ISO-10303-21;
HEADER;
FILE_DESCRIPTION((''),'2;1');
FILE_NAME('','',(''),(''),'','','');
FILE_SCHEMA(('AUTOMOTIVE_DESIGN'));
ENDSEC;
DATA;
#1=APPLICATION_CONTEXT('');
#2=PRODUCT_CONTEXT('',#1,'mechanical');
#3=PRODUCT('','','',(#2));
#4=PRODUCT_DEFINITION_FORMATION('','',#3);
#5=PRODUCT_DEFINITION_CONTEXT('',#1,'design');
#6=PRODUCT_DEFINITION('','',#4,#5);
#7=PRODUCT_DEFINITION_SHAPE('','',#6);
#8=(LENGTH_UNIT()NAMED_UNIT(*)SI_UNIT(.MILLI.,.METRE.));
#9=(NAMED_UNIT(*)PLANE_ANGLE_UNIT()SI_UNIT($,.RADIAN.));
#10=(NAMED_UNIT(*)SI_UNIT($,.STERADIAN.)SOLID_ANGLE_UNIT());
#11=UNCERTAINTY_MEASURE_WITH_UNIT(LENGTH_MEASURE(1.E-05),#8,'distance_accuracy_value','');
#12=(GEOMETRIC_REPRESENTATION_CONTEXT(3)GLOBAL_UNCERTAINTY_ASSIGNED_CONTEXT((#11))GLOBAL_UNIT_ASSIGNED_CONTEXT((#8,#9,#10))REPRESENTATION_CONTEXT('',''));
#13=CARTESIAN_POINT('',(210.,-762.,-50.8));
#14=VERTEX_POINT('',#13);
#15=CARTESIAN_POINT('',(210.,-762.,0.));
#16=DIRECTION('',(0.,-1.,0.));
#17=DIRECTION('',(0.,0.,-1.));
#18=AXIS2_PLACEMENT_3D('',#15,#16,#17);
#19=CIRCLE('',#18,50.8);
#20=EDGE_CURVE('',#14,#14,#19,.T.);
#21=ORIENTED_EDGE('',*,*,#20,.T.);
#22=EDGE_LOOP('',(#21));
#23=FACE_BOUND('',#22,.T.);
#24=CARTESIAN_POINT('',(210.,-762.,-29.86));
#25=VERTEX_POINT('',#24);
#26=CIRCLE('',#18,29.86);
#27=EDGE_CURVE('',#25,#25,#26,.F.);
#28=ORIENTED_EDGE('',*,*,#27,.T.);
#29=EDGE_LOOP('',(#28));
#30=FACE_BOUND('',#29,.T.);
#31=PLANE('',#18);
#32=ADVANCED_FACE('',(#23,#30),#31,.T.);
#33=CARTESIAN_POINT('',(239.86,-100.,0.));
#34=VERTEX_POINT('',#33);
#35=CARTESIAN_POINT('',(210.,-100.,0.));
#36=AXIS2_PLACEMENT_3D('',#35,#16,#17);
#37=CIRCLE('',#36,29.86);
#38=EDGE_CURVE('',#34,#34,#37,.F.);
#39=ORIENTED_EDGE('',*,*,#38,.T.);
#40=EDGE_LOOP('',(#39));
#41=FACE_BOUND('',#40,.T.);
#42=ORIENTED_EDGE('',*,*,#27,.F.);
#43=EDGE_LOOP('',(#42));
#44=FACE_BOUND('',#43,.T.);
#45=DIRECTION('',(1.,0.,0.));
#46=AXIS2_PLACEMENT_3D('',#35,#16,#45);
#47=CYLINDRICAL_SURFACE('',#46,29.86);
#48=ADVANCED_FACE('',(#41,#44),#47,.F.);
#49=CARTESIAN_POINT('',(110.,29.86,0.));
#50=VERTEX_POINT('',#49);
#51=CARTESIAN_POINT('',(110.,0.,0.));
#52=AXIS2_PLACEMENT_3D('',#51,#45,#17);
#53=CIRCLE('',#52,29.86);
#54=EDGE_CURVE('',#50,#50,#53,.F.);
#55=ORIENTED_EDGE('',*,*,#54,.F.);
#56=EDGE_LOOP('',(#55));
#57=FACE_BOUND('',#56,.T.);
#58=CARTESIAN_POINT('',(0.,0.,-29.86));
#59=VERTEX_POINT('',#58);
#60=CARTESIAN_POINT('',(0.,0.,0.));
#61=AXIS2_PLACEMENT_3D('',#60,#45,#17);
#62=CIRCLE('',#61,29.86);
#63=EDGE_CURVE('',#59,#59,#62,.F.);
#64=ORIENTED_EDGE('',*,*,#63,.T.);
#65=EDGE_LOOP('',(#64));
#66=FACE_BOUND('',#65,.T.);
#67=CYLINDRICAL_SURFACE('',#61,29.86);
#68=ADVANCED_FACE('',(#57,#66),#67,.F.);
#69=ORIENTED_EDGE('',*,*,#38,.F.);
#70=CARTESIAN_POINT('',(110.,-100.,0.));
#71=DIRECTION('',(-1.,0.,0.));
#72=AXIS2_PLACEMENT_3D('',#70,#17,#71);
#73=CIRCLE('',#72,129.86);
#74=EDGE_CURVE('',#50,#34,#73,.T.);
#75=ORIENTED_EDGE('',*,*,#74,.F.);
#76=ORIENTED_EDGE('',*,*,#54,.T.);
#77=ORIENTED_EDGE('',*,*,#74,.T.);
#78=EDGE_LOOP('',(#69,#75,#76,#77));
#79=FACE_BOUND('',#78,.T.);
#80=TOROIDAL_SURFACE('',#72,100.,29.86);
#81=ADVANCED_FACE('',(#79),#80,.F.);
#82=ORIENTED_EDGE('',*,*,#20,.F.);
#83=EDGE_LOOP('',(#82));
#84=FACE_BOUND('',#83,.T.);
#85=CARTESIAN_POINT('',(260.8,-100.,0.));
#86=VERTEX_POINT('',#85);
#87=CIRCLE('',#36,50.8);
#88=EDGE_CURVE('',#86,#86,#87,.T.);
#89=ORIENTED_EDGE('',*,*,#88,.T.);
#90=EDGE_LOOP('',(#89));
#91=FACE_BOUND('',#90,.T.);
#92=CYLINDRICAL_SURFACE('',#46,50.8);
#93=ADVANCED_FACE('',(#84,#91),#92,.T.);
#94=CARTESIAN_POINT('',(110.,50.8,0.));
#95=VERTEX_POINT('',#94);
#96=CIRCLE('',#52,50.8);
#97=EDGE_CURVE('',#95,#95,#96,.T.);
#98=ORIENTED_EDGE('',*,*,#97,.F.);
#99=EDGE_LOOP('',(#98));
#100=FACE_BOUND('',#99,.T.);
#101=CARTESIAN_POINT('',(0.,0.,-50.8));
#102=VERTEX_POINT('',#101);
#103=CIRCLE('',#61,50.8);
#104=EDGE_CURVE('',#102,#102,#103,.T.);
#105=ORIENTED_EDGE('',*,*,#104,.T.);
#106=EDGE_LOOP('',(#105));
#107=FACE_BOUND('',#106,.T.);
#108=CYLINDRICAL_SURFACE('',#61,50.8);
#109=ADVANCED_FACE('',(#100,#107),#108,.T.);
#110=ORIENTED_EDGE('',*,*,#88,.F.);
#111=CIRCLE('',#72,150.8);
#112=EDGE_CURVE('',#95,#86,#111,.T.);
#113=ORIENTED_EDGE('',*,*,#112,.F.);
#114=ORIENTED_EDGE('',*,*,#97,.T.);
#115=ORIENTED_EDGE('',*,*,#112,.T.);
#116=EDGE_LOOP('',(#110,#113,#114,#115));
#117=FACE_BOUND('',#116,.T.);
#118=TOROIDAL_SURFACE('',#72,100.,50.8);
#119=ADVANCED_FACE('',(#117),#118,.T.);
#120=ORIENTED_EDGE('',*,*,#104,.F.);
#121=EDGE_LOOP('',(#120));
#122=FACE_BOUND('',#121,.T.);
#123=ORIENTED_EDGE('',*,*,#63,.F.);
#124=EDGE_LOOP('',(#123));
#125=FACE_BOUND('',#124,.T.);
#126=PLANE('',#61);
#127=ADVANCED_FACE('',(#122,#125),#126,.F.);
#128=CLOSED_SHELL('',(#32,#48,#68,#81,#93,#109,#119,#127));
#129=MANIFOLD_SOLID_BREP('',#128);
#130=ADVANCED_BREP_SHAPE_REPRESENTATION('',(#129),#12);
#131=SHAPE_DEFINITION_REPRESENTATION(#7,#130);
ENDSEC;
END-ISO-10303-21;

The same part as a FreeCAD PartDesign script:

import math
import FreeCAD as App
import Part
import Sketcher
from FreeCAD import Vector

doc = App.newDocument("Part")
body = doc.addObject("PartDesign::Body", "Body")

# Sketch on YZ plane
sketch1 = body.newObject("Sketcher::SketchObject", "Sketch")
sketch1.AttachmentSupport = (doc.getObject("YZ_Plane"), [""])
sketch1.MapMode = "FlatFace"
sketch1.addGeometry(Part.Circle(Vector(0, 0, 0), Vector(0, 0, 1), 51), False)
sketch1.addGeometry(Part.Circle(Vector(0, 0, 0), Vector(0, 0, 1), 30), False)
sketch1.addConstraint(Sketcher.Constraint("Coincident", 0, 3, -1, 1))
sketch1.addConstraint(Sketcher.Constraint("Coincident", 1, 3, -1, 1))
sketch1.addConstraint(Sketcher.Constraint("Diameter", 0, 101.6))
sketch1.addConstraint(Sketcher.Constraint("Diameter", 1, 59.72))

# Sketch on XY plane
sketch2 = body.newObject("Sketcher::SketchObject", "Sketch001")
sketch2.AttachmentSupport = (doc.getObject("XY_Plane"), [""])
sketch2.MapMode = "FlatFace"
sketch2.addGeometry(Part.LineSegment(Vector(0, 0, 0), Vector(110, 0, 0)), False)
sketch2.addGeometry(Part.ArcOfCircle(Part.Circle(Vector(110, -100, 0), Vector(0, 0, 1), 100), math.radians(0), math.radians(90)), False)
sketch2.addGeometry(Part.LineSegment(Vector(210, -100, 0), Vector(210, -762, 0)), False)
sketch2.addConstraint(Sketcher.Constraint("Tangent", 0, 2, 1, 2))
sketch2.addConstraint(Sketcher.Constraint("Tangent", 1, 1, 2, 1))
sketch2.addConstraint(Sketcher.Constraint("Horizontal", 0))
sketch2.addConstraint(Sketcher.Constraint("Vertical", 2))
sketch2.addConstraint(Sketcher.Constraint("Coincident", 0, 1, -1, 1))
sketch2.addConstraint(Sketcher.Constraint("Radius", 1, 100.0))
sketch2.addConstraint(Sketcher.Constraint("DistanceX", 0, 1, 0, 2, 110.0))
sketch2.addConstraint(Sketcher.Constraint("DistanceY", 2, 2, 2, 1, 662.0))
doc.recompute()

additivepipe = body.newObject("PartDesign::AdditivePipe", "AdditivePipe")
additivepipe.Profile = sketch1
additivepipe.Spine = (sketch2, ["Edge1", "Edge2", "Edge3"])

doc.recompute()
